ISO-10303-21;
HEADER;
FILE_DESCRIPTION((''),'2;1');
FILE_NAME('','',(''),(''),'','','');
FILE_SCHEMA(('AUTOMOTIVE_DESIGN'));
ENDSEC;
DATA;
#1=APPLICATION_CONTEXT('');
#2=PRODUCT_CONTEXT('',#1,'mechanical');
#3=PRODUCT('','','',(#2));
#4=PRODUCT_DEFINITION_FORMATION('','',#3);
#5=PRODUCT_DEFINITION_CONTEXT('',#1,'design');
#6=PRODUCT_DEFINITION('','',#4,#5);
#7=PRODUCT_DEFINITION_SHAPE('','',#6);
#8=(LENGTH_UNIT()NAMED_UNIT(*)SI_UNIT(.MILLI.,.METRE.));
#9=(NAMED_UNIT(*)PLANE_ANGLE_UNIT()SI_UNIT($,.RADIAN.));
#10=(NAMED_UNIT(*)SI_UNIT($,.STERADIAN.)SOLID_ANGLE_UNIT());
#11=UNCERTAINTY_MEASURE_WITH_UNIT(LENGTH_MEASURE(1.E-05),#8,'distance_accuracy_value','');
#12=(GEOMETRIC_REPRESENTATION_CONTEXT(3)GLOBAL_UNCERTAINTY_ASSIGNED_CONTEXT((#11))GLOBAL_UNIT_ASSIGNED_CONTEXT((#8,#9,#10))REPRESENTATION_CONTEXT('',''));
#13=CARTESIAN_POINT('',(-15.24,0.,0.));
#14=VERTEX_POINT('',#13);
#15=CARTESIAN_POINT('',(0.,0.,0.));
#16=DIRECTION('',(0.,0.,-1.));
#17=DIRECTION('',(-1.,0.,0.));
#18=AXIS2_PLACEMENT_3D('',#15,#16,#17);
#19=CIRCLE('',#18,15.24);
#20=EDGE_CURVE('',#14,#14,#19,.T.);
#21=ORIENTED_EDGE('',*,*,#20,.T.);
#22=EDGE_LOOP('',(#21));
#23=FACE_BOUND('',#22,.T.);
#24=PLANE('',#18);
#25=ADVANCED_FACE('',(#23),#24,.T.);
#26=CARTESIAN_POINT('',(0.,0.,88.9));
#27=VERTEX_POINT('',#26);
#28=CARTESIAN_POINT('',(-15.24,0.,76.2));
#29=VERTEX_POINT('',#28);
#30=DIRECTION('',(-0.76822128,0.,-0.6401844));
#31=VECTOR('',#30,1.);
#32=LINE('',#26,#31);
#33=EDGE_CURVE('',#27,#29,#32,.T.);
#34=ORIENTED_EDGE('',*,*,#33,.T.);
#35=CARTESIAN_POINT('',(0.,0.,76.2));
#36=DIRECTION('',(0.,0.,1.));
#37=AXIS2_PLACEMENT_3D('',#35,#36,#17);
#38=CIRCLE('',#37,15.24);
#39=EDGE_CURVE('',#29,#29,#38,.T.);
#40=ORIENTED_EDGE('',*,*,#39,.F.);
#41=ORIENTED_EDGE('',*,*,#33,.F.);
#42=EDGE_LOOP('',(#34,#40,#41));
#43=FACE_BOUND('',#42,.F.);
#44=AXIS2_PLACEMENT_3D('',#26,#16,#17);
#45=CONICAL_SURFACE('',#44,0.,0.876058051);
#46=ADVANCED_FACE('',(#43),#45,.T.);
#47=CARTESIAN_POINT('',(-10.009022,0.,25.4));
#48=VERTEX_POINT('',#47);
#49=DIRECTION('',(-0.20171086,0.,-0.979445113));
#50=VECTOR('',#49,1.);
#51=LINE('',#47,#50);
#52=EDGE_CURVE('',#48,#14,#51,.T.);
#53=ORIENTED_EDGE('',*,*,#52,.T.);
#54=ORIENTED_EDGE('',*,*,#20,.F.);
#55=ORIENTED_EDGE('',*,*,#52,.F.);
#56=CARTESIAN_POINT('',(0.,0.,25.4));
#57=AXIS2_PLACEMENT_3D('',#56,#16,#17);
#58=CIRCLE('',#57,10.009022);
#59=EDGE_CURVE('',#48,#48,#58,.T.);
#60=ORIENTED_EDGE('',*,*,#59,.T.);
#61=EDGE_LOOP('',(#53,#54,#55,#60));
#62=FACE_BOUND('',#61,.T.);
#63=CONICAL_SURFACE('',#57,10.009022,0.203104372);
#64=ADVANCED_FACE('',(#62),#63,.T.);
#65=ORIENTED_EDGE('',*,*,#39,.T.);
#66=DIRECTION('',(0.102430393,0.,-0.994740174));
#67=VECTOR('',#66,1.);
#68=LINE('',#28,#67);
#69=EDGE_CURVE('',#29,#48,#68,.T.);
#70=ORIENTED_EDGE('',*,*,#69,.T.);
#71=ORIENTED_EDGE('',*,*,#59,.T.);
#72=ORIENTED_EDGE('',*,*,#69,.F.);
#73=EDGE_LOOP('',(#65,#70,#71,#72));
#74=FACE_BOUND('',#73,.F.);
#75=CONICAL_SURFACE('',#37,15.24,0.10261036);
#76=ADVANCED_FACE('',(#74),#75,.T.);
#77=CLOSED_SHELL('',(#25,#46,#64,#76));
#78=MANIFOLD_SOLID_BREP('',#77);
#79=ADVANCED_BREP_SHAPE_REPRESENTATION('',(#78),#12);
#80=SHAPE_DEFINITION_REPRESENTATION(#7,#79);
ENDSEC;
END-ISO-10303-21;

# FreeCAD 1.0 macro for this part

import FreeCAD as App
import Part
import Sketcher

V = App.Vector
Q = App.Units.Quantity


def add_polygon(sketch, points):
    """Adds a closed chain of lines whose ends are joined by coincident constraints."""
    first, n = sketch.GeometryCount, len(points)
    for a, b in zip(points, points[1:] + points[:1]):
        sketch.addGeometry(Part.LineSegment(App.Vector(*a, 0), App.Vector(*b, 0)), False)
    for i in range(n):
        sketch.addConstraint(Sketcher.Constraint("Coincident", first + i, 2, first + (i + 1) % n, 1))

doc = App.newDocument("Part")
body = doc.addObject("PartDesign::Body", "Body")

# Sketch on XZ plane
sketch1 = body.newObject("Sketcher::SketchObject", "Sketch")
sketch1.AttachmentSupport = (doc.getObject("XZ_Plane"), [""])
sketch1.MapMode = "FlatFace"
add_polygon(sketch1, [(-15, 0), (0, 0), (0, 25), (-10, 25)])  # lines 0-3
sketch1.addConstraint([
    Sketcher.Constraint("Horizontal", 0),
    Sketcher.Constraint("Vertical", 1),
    Sketcher.Constraint("Horizontal", 2),
    Sketcher.Constraint("Coincident", 0, 2, -1, 1),
    Sketcher.Constraint("DistanceY", 1, 1, 1, 2, Q("1 in")),
    Sketcher.Constraint("DistanceX", 0, 1, 0, 2, Q("0.6 in")),
    Sketcher.Constraint("Distance", 3, 25.933051),
])
revolution = body.newObject("PartDesign::Revolution", "Revolution")
revolution.Profile = sketch1
revolution.ReferenceAxis = (sketch1, ["V_Axis"])
revolution.Angle = 360

# Sketch on XZ plane
sketch2 = body.newObject("Sketcher::SketchObject", "Sketch001")
sketch2.AttachmentSupport = (doc.getObject("XZ_Plane"), [""])
sketch2.MapMode = "FlatFace"
add_polygon(sketch2, [(-15, 76), (-10, 25), (0, 25), (0, 76)])  # lines 0-3
sketch2.addConstraint([
    Sketcher.Constraint("Horizontal", 1),
    Sketcher.Constraint("Vertical", 2),
    Sketcher.Constraint("Horizontal", 3),
    Sketcher.Constraint("PointOnObject", 1, 2, -2),
    Sketcher.Constraint("DistanceY", 2, 1, 2, 2, Q("2 in")),
    Sketcher.Constraint("DistanceX", 3, 2, 3, 1, Q("0.6 in")),
    Sketcher.Constraint("DistanceY", -1, 1, 0, 2, Q("1 in")),
    Sketcher.Constraint("Distance", 0, 51.068612),
])
revolution2 = body.newObject("PartDesign::Revolution", "Revolution001")
revolution2.Profile = sketch2
revolution2.ReferenceAxis = (sketch2, ["V_Axis"])
revolution2.Angle = 360

# Sketch on XZ plane
sketch3 = body.newObject("Sketcher::SketchObject", "Sketch002")
sketch3.AttachmentSupport = (doc.getObject("XZ_Plane"), [""])
sketch3.MapMode = "FlatFace"
add_polygon(sketch3, [(-15, 76), (0, 76), (0, 89)])  # lines 0-2
sketch3.addConstraint([
    Sketcher.Constraint("Horizontal", 0),
    Sketcher.Constraint("Vertical", 1),
    Sketcher.Constraint("PointOnObject", 0, 2, -2),
    Sketcher.Constraint("DistanceX", 0, 1, 0, 2, Q("0.6 in")),
    Sketcher.Constraint("DistanceY", 1, 1, 1, 2, Q("0.5 in")),
    Sketcher.Constraint("DistanceY", -1, 1, 0, 2, Q("3 in")),
])
revolution3 = body.newObject("PartDesign::Revolution", "Revolution002")
revolution3.Profile = sketch3
revolution3.ReferenceAxis = (sketch3, ["V_Axis"])
revolution3.Angle = 360

doc.recompute()
